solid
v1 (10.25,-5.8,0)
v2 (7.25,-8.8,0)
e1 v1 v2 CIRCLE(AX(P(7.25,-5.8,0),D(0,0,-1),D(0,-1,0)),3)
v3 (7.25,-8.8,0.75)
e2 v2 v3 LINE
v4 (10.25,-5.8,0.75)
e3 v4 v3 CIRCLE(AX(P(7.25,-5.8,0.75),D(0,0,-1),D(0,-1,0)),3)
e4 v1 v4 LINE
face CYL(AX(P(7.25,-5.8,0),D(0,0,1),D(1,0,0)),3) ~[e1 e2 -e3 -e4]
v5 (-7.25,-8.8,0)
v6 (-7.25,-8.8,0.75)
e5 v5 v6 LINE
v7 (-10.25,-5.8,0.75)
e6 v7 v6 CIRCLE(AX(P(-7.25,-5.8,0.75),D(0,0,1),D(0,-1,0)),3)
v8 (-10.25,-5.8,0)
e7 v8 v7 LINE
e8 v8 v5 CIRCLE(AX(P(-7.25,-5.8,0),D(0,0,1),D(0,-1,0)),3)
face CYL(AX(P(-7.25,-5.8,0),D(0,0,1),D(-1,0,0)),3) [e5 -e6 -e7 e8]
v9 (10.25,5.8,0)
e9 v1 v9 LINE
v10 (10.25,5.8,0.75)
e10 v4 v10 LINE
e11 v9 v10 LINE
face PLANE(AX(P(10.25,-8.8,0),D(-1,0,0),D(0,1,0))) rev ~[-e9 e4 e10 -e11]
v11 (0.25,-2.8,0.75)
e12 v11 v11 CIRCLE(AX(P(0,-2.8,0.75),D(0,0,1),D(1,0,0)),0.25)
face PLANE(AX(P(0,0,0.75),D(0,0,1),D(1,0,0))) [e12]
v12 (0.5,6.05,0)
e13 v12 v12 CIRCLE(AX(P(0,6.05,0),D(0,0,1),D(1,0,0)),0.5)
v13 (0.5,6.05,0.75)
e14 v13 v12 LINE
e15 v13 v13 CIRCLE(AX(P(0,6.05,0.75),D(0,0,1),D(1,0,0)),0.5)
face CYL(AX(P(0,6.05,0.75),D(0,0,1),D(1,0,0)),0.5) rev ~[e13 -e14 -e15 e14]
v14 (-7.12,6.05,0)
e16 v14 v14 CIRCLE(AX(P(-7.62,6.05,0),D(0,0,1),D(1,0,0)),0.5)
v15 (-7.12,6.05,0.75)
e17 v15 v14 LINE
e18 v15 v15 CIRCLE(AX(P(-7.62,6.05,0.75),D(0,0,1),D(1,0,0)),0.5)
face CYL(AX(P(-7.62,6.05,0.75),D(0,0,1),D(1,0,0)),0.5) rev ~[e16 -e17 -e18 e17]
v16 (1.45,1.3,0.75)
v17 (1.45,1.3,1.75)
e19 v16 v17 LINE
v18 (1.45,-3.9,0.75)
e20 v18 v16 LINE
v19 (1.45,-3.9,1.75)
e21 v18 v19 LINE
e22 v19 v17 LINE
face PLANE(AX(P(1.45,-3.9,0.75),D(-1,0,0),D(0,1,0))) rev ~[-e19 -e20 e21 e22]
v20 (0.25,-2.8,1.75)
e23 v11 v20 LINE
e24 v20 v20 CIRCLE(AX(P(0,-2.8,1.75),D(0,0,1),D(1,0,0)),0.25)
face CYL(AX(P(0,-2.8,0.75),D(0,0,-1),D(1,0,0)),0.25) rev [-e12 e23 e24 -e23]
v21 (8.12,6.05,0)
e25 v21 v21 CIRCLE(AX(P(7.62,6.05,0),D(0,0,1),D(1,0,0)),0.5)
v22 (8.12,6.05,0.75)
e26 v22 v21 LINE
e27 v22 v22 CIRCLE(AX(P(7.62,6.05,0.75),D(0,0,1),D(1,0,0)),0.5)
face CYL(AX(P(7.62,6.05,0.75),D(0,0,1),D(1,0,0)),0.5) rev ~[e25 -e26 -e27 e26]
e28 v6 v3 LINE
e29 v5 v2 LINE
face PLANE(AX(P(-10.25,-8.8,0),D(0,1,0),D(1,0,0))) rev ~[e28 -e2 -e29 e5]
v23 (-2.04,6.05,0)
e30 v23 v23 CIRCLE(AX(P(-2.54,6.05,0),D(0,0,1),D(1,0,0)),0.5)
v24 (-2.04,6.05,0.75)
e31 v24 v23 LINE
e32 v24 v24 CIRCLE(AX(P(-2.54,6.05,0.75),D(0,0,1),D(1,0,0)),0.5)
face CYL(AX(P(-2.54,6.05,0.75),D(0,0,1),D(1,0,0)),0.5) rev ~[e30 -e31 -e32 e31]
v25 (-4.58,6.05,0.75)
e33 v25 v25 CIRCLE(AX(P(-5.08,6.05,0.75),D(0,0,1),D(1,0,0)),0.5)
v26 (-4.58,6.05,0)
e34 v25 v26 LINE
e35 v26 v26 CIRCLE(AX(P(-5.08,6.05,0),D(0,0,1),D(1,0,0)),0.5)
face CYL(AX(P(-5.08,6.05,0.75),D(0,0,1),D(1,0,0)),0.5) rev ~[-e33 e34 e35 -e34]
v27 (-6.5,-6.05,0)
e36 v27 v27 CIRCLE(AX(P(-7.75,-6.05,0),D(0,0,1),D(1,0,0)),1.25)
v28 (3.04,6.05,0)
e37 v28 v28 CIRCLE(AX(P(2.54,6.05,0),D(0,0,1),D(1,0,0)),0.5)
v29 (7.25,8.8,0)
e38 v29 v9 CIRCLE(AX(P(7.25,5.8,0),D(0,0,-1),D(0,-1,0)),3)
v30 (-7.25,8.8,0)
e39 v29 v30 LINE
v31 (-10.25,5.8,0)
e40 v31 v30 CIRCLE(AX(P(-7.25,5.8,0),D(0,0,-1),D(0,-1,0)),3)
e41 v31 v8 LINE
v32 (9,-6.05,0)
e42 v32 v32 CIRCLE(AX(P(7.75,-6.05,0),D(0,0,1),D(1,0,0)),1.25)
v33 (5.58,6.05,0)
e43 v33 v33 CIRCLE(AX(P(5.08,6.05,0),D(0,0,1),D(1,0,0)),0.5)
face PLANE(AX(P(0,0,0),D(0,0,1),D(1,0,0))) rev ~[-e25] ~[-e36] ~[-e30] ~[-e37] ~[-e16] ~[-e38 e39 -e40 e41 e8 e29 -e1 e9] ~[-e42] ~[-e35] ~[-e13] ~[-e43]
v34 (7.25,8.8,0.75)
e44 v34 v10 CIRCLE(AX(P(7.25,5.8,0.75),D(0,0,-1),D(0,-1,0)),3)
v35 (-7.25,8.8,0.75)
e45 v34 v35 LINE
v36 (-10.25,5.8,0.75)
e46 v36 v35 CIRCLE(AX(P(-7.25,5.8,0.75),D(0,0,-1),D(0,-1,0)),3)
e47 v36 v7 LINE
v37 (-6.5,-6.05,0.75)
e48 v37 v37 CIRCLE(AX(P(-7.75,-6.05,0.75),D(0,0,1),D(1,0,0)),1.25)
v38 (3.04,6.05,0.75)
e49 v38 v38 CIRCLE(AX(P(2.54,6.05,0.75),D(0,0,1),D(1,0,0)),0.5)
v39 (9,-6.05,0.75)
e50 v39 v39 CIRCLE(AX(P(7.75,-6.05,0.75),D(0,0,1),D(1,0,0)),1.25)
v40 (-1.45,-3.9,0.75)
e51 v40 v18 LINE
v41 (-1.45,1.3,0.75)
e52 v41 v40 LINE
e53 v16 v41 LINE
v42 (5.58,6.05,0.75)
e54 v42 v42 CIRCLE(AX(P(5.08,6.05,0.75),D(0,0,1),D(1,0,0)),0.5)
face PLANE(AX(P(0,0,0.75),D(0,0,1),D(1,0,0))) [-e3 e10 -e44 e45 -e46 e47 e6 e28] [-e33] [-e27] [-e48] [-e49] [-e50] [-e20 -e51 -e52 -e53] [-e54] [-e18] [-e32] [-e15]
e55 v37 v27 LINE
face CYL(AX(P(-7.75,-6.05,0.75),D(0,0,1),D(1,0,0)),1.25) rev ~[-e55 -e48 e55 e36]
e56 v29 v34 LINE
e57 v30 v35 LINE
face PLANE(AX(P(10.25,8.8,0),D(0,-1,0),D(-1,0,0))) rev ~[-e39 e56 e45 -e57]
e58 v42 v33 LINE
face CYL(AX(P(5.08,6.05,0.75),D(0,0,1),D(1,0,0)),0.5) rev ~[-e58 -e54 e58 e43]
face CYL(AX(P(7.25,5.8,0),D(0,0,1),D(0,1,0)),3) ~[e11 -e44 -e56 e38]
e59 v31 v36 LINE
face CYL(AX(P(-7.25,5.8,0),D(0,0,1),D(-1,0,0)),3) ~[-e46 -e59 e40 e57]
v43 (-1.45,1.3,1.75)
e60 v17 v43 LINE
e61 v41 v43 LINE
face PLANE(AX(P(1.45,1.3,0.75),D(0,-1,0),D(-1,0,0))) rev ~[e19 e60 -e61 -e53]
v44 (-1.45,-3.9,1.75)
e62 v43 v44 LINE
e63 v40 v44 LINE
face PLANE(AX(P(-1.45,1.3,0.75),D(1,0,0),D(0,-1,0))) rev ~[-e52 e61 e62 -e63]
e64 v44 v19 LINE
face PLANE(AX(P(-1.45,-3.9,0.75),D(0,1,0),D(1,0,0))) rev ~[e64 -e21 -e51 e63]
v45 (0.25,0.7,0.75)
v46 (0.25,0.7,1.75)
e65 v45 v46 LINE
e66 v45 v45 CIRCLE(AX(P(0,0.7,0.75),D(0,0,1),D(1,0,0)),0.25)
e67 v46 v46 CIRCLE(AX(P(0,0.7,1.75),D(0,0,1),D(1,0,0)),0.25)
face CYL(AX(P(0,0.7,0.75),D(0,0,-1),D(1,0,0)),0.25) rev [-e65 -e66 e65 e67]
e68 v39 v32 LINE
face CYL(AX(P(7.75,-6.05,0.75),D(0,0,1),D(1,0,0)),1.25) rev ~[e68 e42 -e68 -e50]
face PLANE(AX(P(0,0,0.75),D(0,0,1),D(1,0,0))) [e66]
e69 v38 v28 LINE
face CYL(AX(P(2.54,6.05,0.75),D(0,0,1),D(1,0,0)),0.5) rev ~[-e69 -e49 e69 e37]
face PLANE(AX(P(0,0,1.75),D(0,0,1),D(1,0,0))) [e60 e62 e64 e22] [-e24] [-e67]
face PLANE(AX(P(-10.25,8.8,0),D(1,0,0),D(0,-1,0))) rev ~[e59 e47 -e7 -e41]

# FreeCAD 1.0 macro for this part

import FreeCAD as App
import Part
import Sketcher
Q = App.Units.Quantity


def edges_at(feature, points):
    """Names of the edges that pass closest to the given points."""
    edges = feature.Shape.Edges
    near = lambda p: min(range(len(edges)), key=lambda i: edges[i].distToShape(Part.Vertex(*p))[0])
    return sorted({f"Edge{near(p) + 1}" for p in points})


def add_polygon(sketch, points):
    """Adds a closed chain of lines whose ends are joined by coincident constraints."""
    first, n = sketch.GeometryCount, len(points)
    for a, b in zip(points, points[1:] + points[:1]):
        sketch.addGeometry(Part.LineSegment(App.Vector(*a, 0), App.Vector(*b, 0)), False)
    for i in range(n):
        sketch.addConstraint(Sketcher.Constraint("Coincident", first + i, 2, first + (i + 1) % n, 1))

doc = App.newDocument("Part")
body = doc.addObject("PartDesign::Body", "Body")

# Sketch on XY plane
sketch1 = body.newObject("Sketcher::SketchObject", "Sketch")
sketch1.AttachmentSupport = (doc.getObject("XY_Plane"), [""])
sketch1.MapMode = "FlatFace"
add_polygon(sketch1, [(-10, 9), (-10, -9), (10, -9), (10, 9)])  # lines 0-3
sketch1.addConstraint([
    Sketcher.Constraint("Vertical", 0),
    Sketcher.Constraint("Horizontal", 1),
    Sketcher.Constraint("Vertical", 2),
    Sketcher.Constraint("Horizontal", 3),
    Sketcher.Constraint("Symmetric", 0, 2, 2, 2, -1, 1),
    Sketcher.Constraint("DistanceX", 1, 1, 1, 2, Q("20.5 mm")),
    Sketcher.Constraint("DistanceY", 0, 2, 0, 1, Q("17.6 mm")),
])
pad1 = body.newObject("PartDesign::Pad", "Pad")
pad1.Profile = sketch1
pad1.Length = 0.75
doc.recompute()

fillet = body.newObject("PartDesign::Fillet", "Fillet")
fillet.Base = (pad1, edges_at(pad1, [
    (10.25, -8.8, 0.375),
    (-10.25, -8.8, 0.375),
    (-10.25, 8.8, 0.375),
    (10.25, 8.8, 0.375),
]))
fillet.Radius = 3

# Sketch on XY plane
sketch2 = body.newObject("Sketcher::SketchObject", "Sketch001")
sketch2.AttachmentSupport = (doc.getObject("XY_Plane"), [""])
sketch2.MapMode = "FlatFace"
sketch2.AttachmentOffset = App.Placement(App.Vector(0, 0, 0.75), App.Rotation())
sketch2.addGeometry([
    Part.Circle(App.Vector(-7.8, -6, 0), App.Vector(0, 0, 1), 1.2),  # 0
    Part.Circle(App.Vector(7.8, -6, 0), App.Vector(0, 0, 1), 1.2),  # 1
    Part.Circle(App.Vector(0, 6, 0), App.Vector(0, 0, 1), 0.5),  # 2
    Part.Circle(App.Vector(2.5, 6, 0), App.Vector(0, 0, 1), 0.5),  # 3
    Part.Circle(App.Vector(5.1, 6, 0), App.Vector(0, 0, 1), 0.5),  # 4
    Part.Circle(App.Vector(7.6, 6, 0), App.Vector(0, 0, 1), 0.5),  # 5
    Part.Circle(App.Vector(-2.5, 6, 0), App.Vector(0, 0, 1), 0.5),  # 6
    Part.Circle(App.Vector(-5.1, 6, 0), App.Vector(0, 0, 1), 0.5),  # 7
    Part.Circle(App.Vector(-7.6, 6, 0), App.Vector(0, 0, 1), 0.5),  # 8
], False)
sketch2.addConstraint([
    Sketcher.Constraint("Equal", 0, 1),
    Sketcher.Constraint("Equal", 2, 3),
    Sketcher.Constraint("Equal", 3, 4),
    Sketcher.Constraint("Equal", 4, 5),
    Sketcher.Constraint("Equal", 5, 6),
    Sketcher.Constraint("Equal", 6, 7),
    Sketcher.Constraint("Equal", 7, 8),
    Sketcher.Constraint("Symmetric", 0, 3, 1, 3, -2),
    Sketcher.Constraint("Symmetric", 3, 3, 6, 3, -2),
    Sketcher.Constraint("Symmetric", 4, 3, 7, 3, -2),
    Sketcher.Constraint("Symmetric", 5, 3, 8, 3, -2),
    Sketcher.Constraint("PointOnObject", 2, 3, -2),
    Sketcher.Constraint("Horizontal", 2, 3, 3, 3),
    Sketcher.Constraint("Horizontal", 3, 3, 4, 3),
    Sketcher.Constraint("Horizontal", 4, 3, 5, 3),
    Sketcher.Constraint("Diameter", 2, Q("1 mm")),
    Sketcher.Constraint("Diameter", 0, Q("2.5 mm")),
    Sketcher.Constraint("DistanceX", 0, 3, 1, 3, Q("15.5 mm")),
    Sketcher.Constraint("DistanceY", 0, 3, 2, 3, Q("12.1 mm")),
    Sketcher.Constraint("DistanceX", -1, 1, 3, 3, Q("2.54 mm")),
    Sketcher.Constraint("DistanceX", 3, 3, 4, 3, Q("2.54 mm")),
    Sketcher.Constraint("DistanceX", 4, 3, 5, 3, Q("2.54 mm")),
    Sketcher.Constraint("DistanceY", 0, 3, -1, 1, Q("6.05 mm")),
])
pocket1 = body.newObject("PartDesign::Pocket", "Pocket")
pocket1.Profile = sketch2
pocket1.Type = "ThroughAll"

# Sketch on XY plane
sketch3 = body.newObject("Sketcher::SketchObject", "Sketch002")
sketch3.AttachmentSupport = (doc.getObject("XY_Plane"), [""])
sketch3.MapMode = "FlatFace"
sketch3.AttachmentOffset = App.Placement(App.Vector(0, 0, 0.75), App.Rotation())
add_polygon(sketch3, [(-1.45, 1.3), (-1.45, -3.9), (1.45, -3.9), (1.45, 1.3)])  # lines 0-3
sketch3.addGeometry(Part.Circle(App.Vector(0, -2.8, 0), App.Vector(0, 0, 1), 0.25), False)  # 4
sketch3.addGeometry(Part.Circle(App.Vector(0, 0.7, 0), App.Vector(0, 0, 1), 0.25), False)  # 5
sketch3.addConstraint([
    Sketcher.Constraint("Vertical", 0),
    Sketcher.Constraint("Horizontal", 1),
    Sketcher.Constraint("Vertical", 2),
    Sketcher.Constraint("Horizontal", 3),
    Sketcher.Constraint("Equal", 4, 5),
    Sketcher.Constraint("PointOnObject", 4, 3, -2),
    Sketcher.Constraint("PointOnObject", 5, 3, -2),
    Sketcher.Constraint("Diameter", 4, Q("0.5 mm")),
    Sketcher.Constraint("DistanceX", 1, 1, 1, 2, Q("2.9 mm")),
    Sketcher.Constraint("DistanceY", 0, 2, 0, 1, Q("5.2 mm")),
    Sketcher.Constraint("DistanceY", -1, 1, 2, 2, Q("1.3 mm")),
    Sketcher.Constraint("DistanceY", 0, 2, 4, 3, Q("1.1 mm")),
    Sketcher.Constraint("DistanceY", 5, 3, 2, 2, Q("0.6 mm")),
    Sketcher.Constraint("DistanceX", 0, 2, -1, 1, Q("1.45 mm")),
])
pad2 = body.newObject("PartDesign::Pad", "Pad001")
pad2.Profile = sketch3
pad2.Length = 1

doc.recompute()
